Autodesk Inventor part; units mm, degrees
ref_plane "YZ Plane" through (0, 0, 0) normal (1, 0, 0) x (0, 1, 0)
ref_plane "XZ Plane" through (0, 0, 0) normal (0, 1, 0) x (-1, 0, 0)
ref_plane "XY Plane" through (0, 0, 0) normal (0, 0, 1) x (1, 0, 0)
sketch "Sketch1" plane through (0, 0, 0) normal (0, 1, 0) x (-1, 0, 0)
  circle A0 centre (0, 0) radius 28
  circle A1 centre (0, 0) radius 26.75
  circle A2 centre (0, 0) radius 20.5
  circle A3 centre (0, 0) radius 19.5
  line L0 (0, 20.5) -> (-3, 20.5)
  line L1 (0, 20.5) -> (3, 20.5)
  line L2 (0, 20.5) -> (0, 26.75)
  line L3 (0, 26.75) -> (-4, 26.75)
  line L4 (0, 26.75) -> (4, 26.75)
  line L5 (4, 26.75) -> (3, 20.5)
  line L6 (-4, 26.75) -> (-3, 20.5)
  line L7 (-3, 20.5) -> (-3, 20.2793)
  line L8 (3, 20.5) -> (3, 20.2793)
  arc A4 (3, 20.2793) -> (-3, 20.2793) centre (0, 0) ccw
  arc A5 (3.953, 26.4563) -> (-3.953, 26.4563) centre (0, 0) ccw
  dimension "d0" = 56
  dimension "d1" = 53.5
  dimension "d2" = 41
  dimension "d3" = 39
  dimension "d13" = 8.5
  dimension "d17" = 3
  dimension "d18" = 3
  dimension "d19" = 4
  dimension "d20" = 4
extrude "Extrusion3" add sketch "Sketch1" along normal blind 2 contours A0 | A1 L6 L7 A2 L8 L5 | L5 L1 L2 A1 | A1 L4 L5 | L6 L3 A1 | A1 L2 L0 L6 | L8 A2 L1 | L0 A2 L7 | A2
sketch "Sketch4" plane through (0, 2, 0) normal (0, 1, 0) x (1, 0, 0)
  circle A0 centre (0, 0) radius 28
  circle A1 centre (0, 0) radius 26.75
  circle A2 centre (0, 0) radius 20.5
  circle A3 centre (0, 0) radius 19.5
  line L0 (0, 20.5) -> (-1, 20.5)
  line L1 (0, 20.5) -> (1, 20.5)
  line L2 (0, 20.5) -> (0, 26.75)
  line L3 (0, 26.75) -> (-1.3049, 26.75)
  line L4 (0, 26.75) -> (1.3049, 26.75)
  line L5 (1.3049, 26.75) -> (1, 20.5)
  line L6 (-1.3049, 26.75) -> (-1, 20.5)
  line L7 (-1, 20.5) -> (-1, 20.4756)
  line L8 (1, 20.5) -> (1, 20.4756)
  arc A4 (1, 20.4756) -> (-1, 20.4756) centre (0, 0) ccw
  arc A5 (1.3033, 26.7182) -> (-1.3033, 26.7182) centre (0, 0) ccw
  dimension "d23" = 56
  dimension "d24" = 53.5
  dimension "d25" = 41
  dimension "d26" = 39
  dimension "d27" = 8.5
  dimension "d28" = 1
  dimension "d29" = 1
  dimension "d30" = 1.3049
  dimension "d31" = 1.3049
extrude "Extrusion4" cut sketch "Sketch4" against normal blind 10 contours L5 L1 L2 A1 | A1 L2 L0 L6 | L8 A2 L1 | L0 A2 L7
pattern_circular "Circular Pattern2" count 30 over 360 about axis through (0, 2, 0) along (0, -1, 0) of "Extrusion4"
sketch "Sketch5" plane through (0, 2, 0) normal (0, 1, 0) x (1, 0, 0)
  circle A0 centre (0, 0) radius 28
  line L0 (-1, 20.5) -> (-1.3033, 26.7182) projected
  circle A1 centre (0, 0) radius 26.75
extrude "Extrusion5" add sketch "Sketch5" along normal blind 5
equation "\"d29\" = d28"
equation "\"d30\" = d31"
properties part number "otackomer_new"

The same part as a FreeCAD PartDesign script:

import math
import FreeCAD as App
import Part
import Sketcher

doc = App.newDocument("Part")
body = doc.addObject("PartDesign::Body", "Body")

sketch1 = body.newObject("Sketcher::SketchObject", "Sketch")
sketch1.AttachmentSupport = (doc.getObject("XZ_Plane"), [""])
sketch1.MapMode = "FlatFace"
sketch1.addGeometry([
    Part.Circle(App.Vector(0, 0, 0), App.Vector(0, 0, 1), 28),
    Part.Circle(App.Vector(0, 0, 0), App.Vector(0, 0, 1), 20),
], False)
sketch1.addConstraint([
    Sketcher.Constraint("Coincident", 0, 3, -1, 1),
    Sketcher.Constraint("Coincident", 1, 3, -1, 1),
    Sketcher.Constraint("Diameter", 0, 56.0),
    Sketcher.Constraint("Diameter", 1, 39.0),
])
pad1 = body.newObject("PartDesign::Pad", "Pad")
pad1.Profile = sketch1
pad1.Length = 2
pad1.Reversed = True

sketch2 = body.newObject("Sketcher::SketchObject", "Sketch001")
sketch2.AttachmentSupport = (doc.getObject("XZ_Plane"), [""])
sketch2.MapMode = "FlatFace"
sketch2.AttachmentOffset = App.Placement(App.Vector(0, 0, -2), App.Rotation())
sketch2.addGeometry([
    Part.LineSegment(App.Vector(1, -20.5, 0), App.Vector(1.303, -26.718, 0)),
    Part.ArcOfCircle(Part.Circle(App.Vector(0, 0, 0), App.Vector(0, 0, 1), 26.75), math.radians(-92.79), math.radians(-87.21)),
    Part.LineSegment(App.Vector(-1.303, -26.718, 0), App.Vector(-1, -20.5, 0)),
    Part.LineSegment(App.Vector(-1, -20.5, 0), App.Vector(-1, -20.476, 0)),
    Part.ArcOfCircle(Part.Circle(App.Vector(0, 0, 0), App.Vector(0, 0, 1), 20.5), math.radians(-92.8), math.radians(-87.2)),
    Part.LineSegment(App.Vector(1, -20.476, 0), App.Vector(1, -20.5, 0)),
], False)
sketch2.addConstraint([
    Sketcher.Constraint("Coincident", 0, 2, 1, 2),
    Sketcher.Constraint("Coincident", 1, 1, 2, 1),
    Sketcher.Constraint("Coincident", 2, 2, 3, 1),
    Sketcher.Constraint("Coincident", 3, 2, 4, 1),
    Sketcher.Constraint("Coincident", 4, 2, 5, 1),
    Sketcher.Constraint("Coincident", 5, 2, 0, 1),
    Sketcher.Constraint("Vertical", 3),
    Sketcher.Constraint("Vertical", 5),
    Sketcher.Constraint("Coincident", 1, 3, -1, 1),
    Sketcher.Constraint("Coincident", 4, 3, -1, 1),
    Sketcher.Constraint("Symmetric", 2, 2, 5, 2, -2),
    Sketcher.Constraint("Horizontal", 0, 2, 1, 1),
    Sketcher.Constraint("Radius", 4, 20.5),
    Sketcher.Constraint("Radius", 1, 26.75),
    Sketcher.Constraint("DistanceX", 2, 2, -1, 1, 1.0),
    Sketcher.Constraint("DistanceY", 2, 2, -1, 1, 20.5),
    Sketcher.Constraint("DistanceX", -1, 1, 0, 2, 1.3033),
])
pocket1 = body.newObject("PartDesign::Pocket", "Pocket")
pocket1.Profile = sketch2
pocket1.Length = 10
pocket1.Reversed = True
doc.recompute()

polarpattern = body.newObject("PartDesign::PolarPattern", "PolarPattern")
polarpattern.Originals = [pocket1]
polarpattern.Axis = (doc.getObject("Y_Axis"), [""])
polarpattern.Angle = 360
polarpattern.Occurrences = 30
body.Tip = polarpattern

sketch3 = body.newObject("Sketcher::SketchObject", "Sketch002")
sketch3.AttachmentSupport = (doc.getObject("XZ_Plane"), [""])
sketch3.MapMode = "FlatFace"
sketch3.AttachmentOffset = App.Placement(App.Vector(0, 0, -2), App.Rotation())
sketch3.addGeometry([
    Part.Circle(App.Vector(0, 0, 0), App.Vector(0, 0, 1), 28),
    Part.Circle(App.Vector(0, 0, 0), App.Vector(0, 0, 1), 27),
], False)
sketch3.addConstraint([
    Sketcher.Constraint("Coincident", 0, 3, -1, 1),
    Sketcher.Constraint("Coincident", 1, 3, -1, 1),
    Sketcher.Constraint("Diameter", 0, 56.0),
    Sketcher.Constraint("Diameter", 1, 53.5),
])
pad2 = body.newObject("PartDesign::Pad", "Pad001")
pad2.Profile = sketch3
pad2.Length = 5
pad2.Reversed = True

doc.recompute()
